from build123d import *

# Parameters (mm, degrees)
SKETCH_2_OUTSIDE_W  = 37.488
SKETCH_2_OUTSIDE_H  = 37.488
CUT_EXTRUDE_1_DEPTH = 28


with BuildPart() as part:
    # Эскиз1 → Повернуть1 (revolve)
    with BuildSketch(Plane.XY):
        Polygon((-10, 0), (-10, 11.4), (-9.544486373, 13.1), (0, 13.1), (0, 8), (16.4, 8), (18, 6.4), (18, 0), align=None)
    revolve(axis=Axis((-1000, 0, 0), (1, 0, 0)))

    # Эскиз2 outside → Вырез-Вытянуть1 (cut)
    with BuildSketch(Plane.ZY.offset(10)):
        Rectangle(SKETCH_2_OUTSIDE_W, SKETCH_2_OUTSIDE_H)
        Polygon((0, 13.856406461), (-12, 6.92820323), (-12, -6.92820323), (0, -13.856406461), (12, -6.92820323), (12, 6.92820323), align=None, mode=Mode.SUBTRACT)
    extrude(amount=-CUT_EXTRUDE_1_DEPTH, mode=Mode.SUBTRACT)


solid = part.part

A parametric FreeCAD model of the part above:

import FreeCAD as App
import Part
import Sketcher

V = App.Vector
Q = App.Units.Quantity

doc = App.newDocument("Part")
body = doc.addObject("PartDesign::Body", "Body")

sketch1 = body.newObject("Sketcher::SketchObject", "Sketch")
sketch1.AttachmentSupport = (doc.getObject("XY_Plane"), [""])
sketch1.MapMode = "FlatFace"
sketch1.addGeometry(Part.LineSegment(V(-10, 11.4, 0), V(-10, 0, 0)), False)
sketch1.addGeometry(Part.LineSegment(V(-10, 0, 0), V(18, 0, 0)), False)
sketch1.addGeometry(Part.LineSegment(V(18, 0, 0), V(18, 6.4, 0)), False)
sketch1.addGeometry(Part.LineSegment(V(18, 6.4, 0), V(16.4, 8, 0)), False)
sketch1.addGeometry(Part.LineSegment(V(16.4, 8, 0), V(0, 8, 0)), False)
sketch1.addGeometry(Part.LineSegment(V(0, 8, 0), V(0, 13.1, 0)), False)
sketch1.addGeometry(Part.LineSegment(V(0, 13.1, 0), V(-9.544486, 13.1, 0)), False)
sketch1.addGeometry(Part.LineSegment(V(-9.544486, 13.1, 0), V(-10, 11.4, 0)), False)
sketch1.addConstraint(Sketcher.Constraint("Coincident", 0, 2, 1, 1))
sketch1.addConstraint(Sketcher.Constraint("Coincident", 1, 2, 2, 1))
sketch1.addConstraint(Sketcher.Constraint("Coincident", 2, 2, 3, 1))
sketch1.addConstraint(Sketcher.Constraint("Coincident", 3, 2, 4, 1))
sketch1.addConstraint(Sketcher.Constraint("Coincident", 4, 2, 5, 1))
sketch1.addConstraint(Sketcher.Constraint("Coincident", 5, 2, 6, 1))
sketch1.addConstraint(Sketcher.Constraint("Coincident", 6, 2, 7, 1))
sketch1.addConstraint(Sketcher.Constraint("Coincident", 7, 2, 0, 1))
sketch1.addConstraint(Sketcher.Constraint("Vertical", 0))
sketch1.addConstraint(Sketcher.Constraint("Horizontal", 1))
sketch1.addConstraint(Sketcher.Constraint("Vertical", 2))
sketch1.addConstraint(Sketcher.Constraint("Horizontal", 4))
sketch1.addConstraint(Sketcher.Constraint("Vertical", 5))
sketch1.addConstraint(Sketcher.Constraint("Horizontal", 6))
sketch1.addConstraint(Sketcher.Constraint("PointOnObject", 0, 2, -1))
sketch1.addConstraint(Sketcher.Constraint("PointOnObject", 4, 2, -2))
sketch1.addConstraint(Sketcher.Constraint("DistanceX", 1, 1, 1, 2, 28.0))
sketch1.addConstraint(Sketcher.Constraint("Angle", 3, Q("135 deg")))
sketch1.addConstraint(Sketcher.Constraint("Angle", 7, Q("-105 deg")))
sketch1.addConstraint(Sketcher.Constraint("DistanceX", 4, 2, 4, 1, 16.4))
sketch1.addConstraint(Sketcher.Constraint("DistanceY", 0, 2, 0, 1, 11.4))
sketch1.addConstraint(Sketcher.Constraint("DistanceY", 2, 1, 2, 2, 6.4))
sketch1.addConstraint(Sketcher.Constraint("DistanceY", 5, 1, 5, 2, 5.1))
sketch1.addConstraint(Sketcher.Constraint("DistanceX", 0, 2, -1, 1, 10.0))
revolution = body.newObject("PartDesign::Revolution", "Revolution")
revolution.Profile = sketch1
revolution.ReferenceAxis = (sketch1, ["H_Axis"])
revolution.Angle = 360

sketch2 = body.newObject("Sketcher::SketchObject", "Sketch001")
sketch2.AttachmentSupport = (doc.getObject("YZ_Plane"), [""])
sketch2.MapMode = "FlatFace"
sketch2.AttachmentOffset = App.Placement(V(0, 0, -10), App.Rotation())
sketch2.addGeometry(Part.LineSegment(V(18.744, -18.744, 0), V(-18.744, -18.744, 0)), False)
sketch2.addGeometry(Part.LineSegment(V(-18.744, -18.744, 0), V(-18.744, 18.744, 0)), False)
sketch2.addGeometry(Part.LineSegment(V(-18.744, 18.744, 0), V(18.744, 18.744, 0)), False)
sketch2.addGeometry(Part.LineSegment(V(18.744, 18.744, 0), V(18.744, -18.744, 0)), False)
sketch2.addGeometry(Part.LineSegment(V(6.928203, -12, 0), V(13.856406, 0, 0)), False)
sketch2.addGeometry(Part.LineSegment(V(13.856406, 0, 0), V(6.928203, 12, 0)), False)
sketch2.addGeometry(Part.LineSegment(V(6.928203, 12, 0), V(-6.928203, 12, 0)), False)
sketch2.addGeometry(Part.LineSegment(V(-6.928203, 12, 0), V(-13.856406, 0, 0)), False)
sketch2.addGeometry(Part.LineSegment(V(-13.856406, 0, 0), V(-6.928203, -12, 0)), False)
sketch2.addGeometry(Part.LineSegment(V(-6.928203, -12, 0), V(6.928203, -12, 0)), False)
sketch2.addConstraint(Sketcher.Constraint("Coincident", 0, 2, 1, 1))
sketch2.addConstraint(Sketcher.Constraint("Coincident", 1, 2, 2, 1))
sketch2.addConstraint(Sketcher.Constraint("Coincident", 2, 2, 3, 1))
sketch2.addConstraint(Sketcher.Constraint("Coincident", 3, 2, 0, 1))
sketch2.addConstraint(Sketcher.Constraint("Coincident", 4, 2, 5, 1))
sketch2.addConstraint(Sketcher.Constraint("Coincident", 5, 2, 6, 1))
sketch2.addConstraint(Sketcher.Constraint("Coincident", 6, 2, 7, 1))
sketch2.addConstraint(Sketcher.Constraint("Coincident", 7, 2, 8, 1))
sketch2.addConstraint(Sketcher.Constraint("Coincident", 8, 2, 9, 1))
sketch2.addConstraint(Sketcher.Constraint("Coincident", 9, 2, 4, 1))
sketch2.addConstraint(Sketcher.Constraint("Horizontal", 0))
sketch2.addConstraint(Sketcher.Constraint("Vertical", 1))
sketch2.addConstraint(Sketcher.Constraint("Horizontal", 2))
sketch2.addConstraint(Sketcher.Constraint("Vertical", 3))
sketch2.addConstraint(Sketcher.Constraint("Horizontal", 6))
sketch2.addConstraint(Sketcher.Constraint("Horizontal", 9))
sketch2.addConstraint(Sketcher.Constraint("Symmetric", 0, 2, 2, 2, -1, 1))
sketch2.addConstraint(Sketcher.Constraint("Symmetric", 4, 2, 7, 2, -1, 1))
sketch2.addConstraint(Sketcher.Constraint("Symmetric", 5, 2, 8, 2, -1, 1))
sketch2.addConstraint(Sketcher.Constraint("PointOnObject", 4, 2, -1))
sketch2.addConstraint(Sketcher.Constraint("Parallel", 4, 7))
sketch2.addConstraint(Sketcher.Constraint("Vertical", 6, 2, 8, 2))
sketch2.addConstraint(Sketcher.Constraint("Equal", 2, 1))
sketch2.addConstraint(Sketcher.Constraint("Angle", 4, Q("60 deg")))
sketch2.addConstraint(Sketcher.Constraint("DistanceY", -1, 1, 5, 2, 12.0))
sketch2.addConstraint(Sketcher.Constraint("DistanceX", 0, 2, 0, 1, 37.488))
sketch2.addConstraint(Sketcher.Constraint("DistanceX", 6, 2, 6, 1, 13.856406))
pocket1 = body.newObject("PartDesign::Pocket", "Pocket")
pocket1.Profile = sketch2
pocket1.Length = 28
pocket1.Reversed = True

doc.recompute()
